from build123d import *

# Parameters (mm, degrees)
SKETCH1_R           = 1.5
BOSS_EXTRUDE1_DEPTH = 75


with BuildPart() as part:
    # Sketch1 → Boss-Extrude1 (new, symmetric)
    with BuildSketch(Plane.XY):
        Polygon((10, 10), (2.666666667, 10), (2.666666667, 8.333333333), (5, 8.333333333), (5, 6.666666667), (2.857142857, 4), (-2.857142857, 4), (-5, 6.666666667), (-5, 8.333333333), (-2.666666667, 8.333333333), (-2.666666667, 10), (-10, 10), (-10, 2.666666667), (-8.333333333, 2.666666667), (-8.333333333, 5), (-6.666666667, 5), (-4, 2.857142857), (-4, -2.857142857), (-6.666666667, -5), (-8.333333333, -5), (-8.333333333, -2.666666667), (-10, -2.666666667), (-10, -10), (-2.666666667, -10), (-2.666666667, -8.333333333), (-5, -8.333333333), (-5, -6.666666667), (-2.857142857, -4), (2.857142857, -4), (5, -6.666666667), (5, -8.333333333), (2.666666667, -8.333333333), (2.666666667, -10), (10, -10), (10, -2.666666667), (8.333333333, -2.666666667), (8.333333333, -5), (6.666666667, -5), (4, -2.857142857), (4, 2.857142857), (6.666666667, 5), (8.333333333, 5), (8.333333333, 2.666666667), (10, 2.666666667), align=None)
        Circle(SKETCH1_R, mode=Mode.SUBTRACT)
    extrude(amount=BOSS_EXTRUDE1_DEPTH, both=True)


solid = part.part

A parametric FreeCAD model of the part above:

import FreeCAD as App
import Part
import Sketcher

V = App.Vector


def add_polygon(sketch, points):
    """Adds a closed chain of lines whose ends are joined by coincident constraints."""
    first, n = sketch.GeometryCount, len(points)
    for a, b in zip(points, points[1:] + points[:1]):
        sketch.addGeometry(Part.LineSegment(App.Vector(*a, 0), App.Vector(*b, 0)), False)
    for i in range(n):
        sketch.addConstraint(Sketcher.Constraint("Coincident", first + i, 2, first + (i + 1) % n, 1))

doc = App.newDocument("Part")
params = doc.addObject("Spreadsheet::Sheet", "Params")
for row, (alias, value) in enumerate([
    ("sketch1_diameter", "3 mm"),
    ("pad1_length", "150 mm"),
], start=1):
    params.set(f"A{row}", alias)
    params.set(f"B{row}", "=" + value)
    params.setAlias(f"B{row}", alias)

body = doc.addObject("PartDesign::Body", "Body")

# Sketch on XY plane
sketch1 = body.newObject("Sketcher::SketchObject", "Sketch")
sketch1.AttachmentSupport = (doc.getObject("XY_Plane"), [""])
sketch1.MapMode = "FlatFace"
add_polygon(sketch1, [(10, 10), (2.7, 10), (2.7, 8.3), (5, 8.3), (5, 6.7), (2.9, 4), (-2.9, 4), (-5, 6.7), (-5, 8.3), (-2.7, 8.3), (-2.7, 10), (-10, 10), (-10, 2.7), (-8.3, 2.7), (-8.3, 5), (-6.7, 5), (-4, 2.9), (-4, -2.9), (-6.7, -5), (-8.3, -5), (-8.3, -2.7), (-10, -2.7), (-10, -10), (-2.7, -10), (-2.7, -8.3), (-5, -8.3), (-5, -6.7), (-2.9, -4), (2.9, -4), (5, -6.7), (5, -8.3), (2.7, -8.3), (2.7, -10), (10, -10), (10, -2.7), (8.3, -2.7), (8.3, -5), (6.7, -5), (4, -2.9), (4, 2.9), (6.7, 5), (8.3, 5), (8.3, 2.7), (10, 2.7)])  # lines 0-43
sketch1.addGeometry(Part.Circle(V(0, 0, 0), V(0, 0, 1), 1.5), False)  # 44
sketch1.addConstraint(Sketcher.Constraint("Horizontal", 0))
sketch1.addConstraint(Sketcher.Constraint("Vertical", 1))
sketch1.addConstraint(Sketcher.Constraint("Horizontal", 2))
sketch1.addConstraint(Sketcher.Constraint("Vertical", 3))
sketch1.addConstraint(Sketcher.Constraint("Horizontal", 5))
sketch1.addConstraint(Sketcher.Constraint("Vertical", 7))
sketch1.addConstraint(Sketcher.Constraint("Horizontal", 8))
sketch1.addConstraint(Sketcher.Constraint("Vertical", 9))
sketch1.addConstraint(Sketcher.Constraint("Horizontal", 10))
sketch1.addConstraint(Sketcher.Constraint("Vertical", 11))
sketch1.addConstraint(Sketcher.Constraint("Horizontal", 12))
sketch1.addConstraint(Sketcher.Constraint("Vertical", 13))
sketch1.addConstraint(Sketcher.Constraint("Horizontal", 14))
sketch1.addConstraint(Sketcher.Constraint("Vertical", 16))
sketch1.addConstraint(Sketcher.Constraint("Horizontal", 18))
sketch1.addConstraint(Sketcher.Constraint("Vertical", 19))
sketch1.addConstraint(Sketcher.Constraint("Horizontal", 20))
sketch1.addConstraint(Sketcher.Constraint("Vertical", 21))
sketch1.addConstraint(Sketcher.Constraint("Horizontal", 22))
sketch1.addConstraint(Sketcher.Constraint("Vertical", 23))
sketch1.addConstraint(Sketcher.Constraint("Horizontal", 24))
sketch1.addConstraint(Sketcher.Constraint("Vertical", 25))
sketch1.addConstraint(Sketcher.Constraint("Horizontal", 27))
sketch1.addConstraint(Sketcher.Constraint("Vertical", 29))
sketch1.addConstraint(Sketcher.Constraint("Horizontal", 30))
sketch1.addConstraint(Sketcher.Constraint("Vertical", 31))
sketch1.addConstraint(Sketcher.Constraint("Horizontal", 32))
sketch1.addConstraint(Sketcher.Constraint("Vertical", 33))
sketch1.addConstraint(Sketcher.Constraint("Horizontal", 34))
sketch1.addConstraint(Sketcher.Constraint("Vertical", 35))
sketch1.addConstraint(Sketcher.Constraint("Horizontal", 36))
sketch1.addConstraint(Sketcher.Constraint("Vertical", 38))
sketch1.addConstraint(Sketcher.Constraint("Horizontal", 40))
sketch1.addConstraint(Sketcher.Constraint("Vertical", 41))
sketch1.addConstraint(Sketcher.Constraint("Horizontal", 42))
sketch1.addConstraint(Sketcher.Constraint("Vertical", 43))
sketch1.addConstraint(Sketcher.Constraint("Coincident", 44, 3, -1, 1))
sketch1.addConstraint(Sketcher.Constraint("Symmetric", 0, 2, 22, 2, -1, 1))
sketch1.addConstraint(Sketcher.Constraint("Symmetric", 2, 2, 24, 2, -1, 1))
sketch1.addConstraint(Sketcher.Constraint("Symmetric", 4, 2, 26, 2, -1, 1))
sketch1.addConstraint(Sketcher.Constraint("Symmetric", 6, 2, 28, 2, -1, 1))
sketch1.addConstraint(Sketcher.Constraint("Symmetric", 8, 2, 30, 2, -1, 1))
sketch1.addConstraint(Sketcher.Constraint("Symmetric", 10, 2, 32, 2, -1, 1))
sketch1.addConstraint(Sketcher.Constraint("Symmetric", 12, 2, 34, 2, -1, 1))
sketch1.addConstraint(Sketcher.Constraint("Symmetric", 14, 2, 36, 2, -1, 1))
sketch1.addConstraint(Sketcher.Constraint("Symmetric", 15, 2, 37, 2, -1, 1))
sketch1.addConstraint(Sketcher.Constraint("Symmetric", 17, 2, 39, 2, -1, 1))
sketch1.addConstraint(Sketcher.Constraint("Symmetric", 19, 2, 41, 2, -1, 1))
sketch1.addConstraint(Sketcher.Constraint("Symmetric", 3, 2, 6, 2, -2))
sketch1.addConstraint(Sketcher.Constraint("Symmetric", 1, 2, 8, 2, -2))
sketch1.addConstraint(Sketcher.Constraint("Symmetric", 21, 2, 32, 2, -2))
sketch1.addConstraint(Sketcher.Constraint("Symmetric", 19, 2, 34, 2, -2))
sketch1.addConstraint(Sketcher.Constraint("Symmetric", 17, 2, 36, 2, -2))
sketch1.addConstraint(Sketcher.Constraint("Perpendicular", 4, 15))
sketch1.addConstraint(Sketcher.Constraint("Perpendicular", 6, 17))
sketch1.addConstraint(Sketcher.Constraint("Perpendicular", 15, 26))
sketch1.addConstraint(Sketcher.Constraint("Perpendicular", 17, 28))
sketch1.addConstraint(Sketcher.Constraint("Perpendicular", 28, 39))
sketch1.addConstraint(Sketcher.Constraint("Horizontal", 16, 2, 37, 2))
sketch1.addConstraint(Sketcher.Constraint("Vertical", 33, 2, 42, 2))
sketch1.addConstraint(Sketcher.Constraint("Equal", 12, 14))
sketch1.addConstraint(Sketcher.Constraint("Equal", 42, 1))
sketch1.addConstraint(Sketcher.Constraint("Equal", 1, 3))
sketch1.addConstraint(Sketcher.Constraint("Equal", 32, 11))
sketch1.addConstraint(Sketcher.Constraint("Equal", 30, 13))
sketch1.addConstraint(Sketcher.Constraint("Equal", 27, 16))
sketch1.addConstraint(Sketcher.Constraint("Equal", 6, 15))
sketch1.addConstraint(Sketcher.Constraint("Diameter", 44, 3.0))
sketch1.addConstraint(Sketcher.Constraint("DistanceY", -1, 1, 0, 2, 10.0))
sketch1.addConstraint(Sketcher.Constraint("DistanceX", -1, 1, 2, 2, 5.0))
sketch1.addConstraint(Sketcher.Constraint("DistanceY", -1, 1, 4, 2, 4.0))
sketch1.addConstraint(Sketcher.Constraint("DistanceY", 11, 2, 6, 2, 4.0))
sketch1.addConstraint(Sketcher.Constraint("DistanceX", 0, 2, 0, 1, 7.333333))
sketch1.addConstraint(Sketcher.Constraint("DistanceX", 5, 2, 5, 1, 5.714286))
sketch1.setExpression("Constraints[111]", "Params.sketch1_diameter")
pad1 = body.newObject("PartDesign::Pad", "Pad")
pad1.Profile = sketch1
pad1.setExpression("Length", "Params.pad1_length")
pad1.Midplane = True

doc.recompute()
